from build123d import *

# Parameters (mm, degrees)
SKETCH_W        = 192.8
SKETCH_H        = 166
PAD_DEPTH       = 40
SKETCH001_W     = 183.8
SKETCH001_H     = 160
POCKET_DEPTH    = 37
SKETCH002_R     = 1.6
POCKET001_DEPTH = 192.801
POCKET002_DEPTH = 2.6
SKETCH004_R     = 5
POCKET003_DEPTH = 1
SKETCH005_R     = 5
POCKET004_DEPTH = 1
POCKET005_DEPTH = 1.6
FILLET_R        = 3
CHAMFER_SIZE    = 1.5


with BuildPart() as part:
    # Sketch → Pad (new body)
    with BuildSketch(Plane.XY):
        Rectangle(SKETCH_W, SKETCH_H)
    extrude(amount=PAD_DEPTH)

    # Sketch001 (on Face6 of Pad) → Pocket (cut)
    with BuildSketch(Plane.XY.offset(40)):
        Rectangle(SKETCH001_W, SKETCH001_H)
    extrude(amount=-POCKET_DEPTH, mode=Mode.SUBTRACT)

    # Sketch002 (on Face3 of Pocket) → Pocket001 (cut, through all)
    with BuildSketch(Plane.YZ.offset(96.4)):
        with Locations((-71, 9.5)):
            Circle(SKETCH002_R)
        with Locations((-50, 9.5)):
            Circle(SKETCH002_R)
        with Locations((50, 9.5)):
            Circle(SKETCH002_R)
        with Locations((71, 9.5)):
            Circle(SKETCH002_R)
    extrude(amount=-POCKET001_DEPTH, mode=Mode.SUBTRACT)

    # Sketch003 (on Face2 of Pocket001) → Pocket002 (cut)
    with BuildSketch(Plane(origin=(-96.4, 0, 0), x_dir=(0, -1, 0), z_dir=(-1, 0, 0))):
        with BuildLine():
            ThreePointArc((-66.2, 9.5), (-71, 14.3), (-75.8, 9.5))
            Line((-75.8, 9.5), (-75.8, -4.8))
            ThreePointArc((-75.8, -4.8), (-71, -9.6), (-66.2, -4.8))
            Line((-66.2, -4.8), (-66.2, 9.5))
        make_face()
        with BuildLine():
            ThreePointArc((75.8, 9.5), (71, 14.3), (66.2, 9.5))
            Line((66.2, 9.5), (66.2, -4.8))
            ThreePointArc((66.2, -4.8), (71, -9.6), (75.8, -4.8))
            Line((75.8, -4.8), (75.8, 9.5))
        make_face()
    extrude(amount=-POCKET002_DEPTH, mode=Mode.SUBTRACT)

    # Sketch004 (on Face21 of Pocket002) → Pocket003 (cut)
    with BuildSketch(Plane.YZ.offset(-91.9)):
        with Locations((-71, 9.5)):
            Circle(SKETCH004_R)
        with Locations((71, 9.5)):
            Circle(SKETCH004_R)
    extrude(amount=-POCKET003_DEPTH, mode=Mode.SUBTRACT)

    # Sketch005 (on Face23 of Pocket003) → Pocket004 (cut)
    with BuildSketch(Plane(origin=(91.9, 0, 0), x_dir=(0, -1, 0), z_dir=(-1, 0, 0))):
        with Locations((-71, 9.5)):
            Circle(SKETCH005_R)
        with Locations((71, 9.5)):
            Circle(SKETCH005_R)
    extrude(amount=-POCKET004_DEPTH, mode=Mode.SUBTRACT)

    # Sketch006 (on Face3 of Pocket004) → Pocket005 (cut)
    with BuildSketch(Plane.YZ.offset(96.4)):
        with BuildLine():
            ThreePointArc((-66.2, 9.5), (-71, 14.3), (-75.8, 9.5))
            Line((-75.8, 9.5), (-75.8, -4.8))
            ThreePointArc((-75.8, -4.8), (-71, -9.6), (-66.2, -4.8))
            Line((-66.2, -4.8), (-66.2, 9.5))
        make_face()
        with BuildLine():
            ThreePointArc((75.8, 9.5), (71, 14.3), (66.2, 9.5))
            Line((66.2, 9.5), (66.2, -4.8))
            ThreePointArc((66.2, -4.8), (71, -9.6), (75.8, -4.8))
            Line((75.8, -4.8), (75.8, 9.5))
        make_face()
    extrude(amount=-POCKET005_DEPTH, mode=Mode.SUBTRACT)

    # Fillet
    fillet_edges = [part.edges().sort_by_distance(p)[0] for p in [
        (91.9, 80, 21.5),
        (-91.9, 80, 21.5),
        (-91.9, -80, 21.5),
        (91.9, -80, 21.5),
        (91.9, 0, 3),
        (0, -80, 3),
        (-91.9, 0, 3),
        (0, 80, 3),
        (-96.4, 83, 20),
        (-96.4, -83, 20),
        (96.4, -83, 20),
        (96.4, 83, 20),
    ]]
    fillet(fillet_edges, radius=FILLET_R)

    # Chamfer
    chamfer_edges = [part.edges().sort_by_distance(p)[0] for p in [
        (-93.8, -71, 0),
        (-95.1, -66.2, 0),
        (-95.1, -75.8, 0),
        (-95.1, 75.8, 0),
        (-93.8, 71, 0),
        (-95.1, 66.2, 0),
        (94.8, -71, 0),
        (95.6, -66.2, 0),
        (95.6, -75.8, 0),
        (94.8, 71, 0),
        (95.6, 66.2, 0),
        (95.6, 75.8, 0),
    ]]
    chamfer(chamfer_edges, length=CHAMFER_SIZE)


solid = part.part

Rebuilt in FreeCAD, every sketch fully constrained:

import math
import FreeCAD as App
import Part
import Sketcher
from FreeCAD import Vector


def edges_at(feature, points):
    """Names of the edges that pass closest to the given points."""
    edges = feature.Shape.Edges
    near = lambda p: min(range(len(edges)), key=lambda i: edges[i].distToShape(Part.Vertex(*p))[0])
    return sorted({f"Edge{near(p) + 1}" for p in points})

doc = App.newDocument("Part")
body = doc.addObject("PartDesign::Body", "Body")

sketch1 = body.newObject("Sketcher::SketchObject", "Sketch")
sketch1.AttachmentSupport = (doc.getObject("XY_Plane"), [""])
sketch1.MapMode = "FlatFace"
sketch1.addGeometry([
    Part.LineSegment(Vector(-96, 83, 0), Vector(-96, -83, 0)),
    Part.LineSegment(Vector(-96, -83, 0), Vector(96, -83, 0)),
    Part.LineSegment(Vector(96, -83, 0), Vector(96, 83, 0)),
    Part.LineSegment(Vector(96, 83, 0), Vector(-96, 83, 0)),
], False)
sketch1.addConstraint([
    Sketcher.Constraint("Coincident", 0, 2, 1, 1),
    Sketcher.Constraint("Coincident", 1, 2, 2, 1),
    Sketcher.Constraint("Coincident", 2, 2, 3, 1),
    Sketcher.Constraint("Coincident", 3, 2, 0, 1),
    Sketcher.Constraint("Vertical", 0),
    Sketcher.Constraint("Horizontal", 1),
    Sketcher.Constraint("Vertical", 2),
    Sketcher.Constraint("Horizontal", 3),
    Sketcher.Constraint("Symmetric", 0, 2, 2, 2, -1, 1),
    Sketcher.Constraint("DistanceY", 0, 2, 0, 1, 166.0),
    Sketcher.Constraint("DistanceX", 1, 1, 1, 2, 192.8),
])
pad1 = body.newObject("PartDesign::Pad", "Pad")
pad1.Profile = sketch1
pad1.Length = 40

sketch2 = body.newObject("Sketcher::SketchObject", "Sketch001")
sketch2.AttachmentSupport = (doc.getObject("XY_Plane"), [""])
sketch2.MapMode = "FlatFace"
sketch2.AttachmentOffset = App.Placement(Vector(0, 0, 40), App.Rotation())
sketch2.addGeometry([
    Part.LineSegment(Vector(-92, 80, 0), Vector(-92, -80, 0)),
    Part.LineSegment(Vector(-92, -80, 0), Vector(92, -80, 0)),
    Part.LineSegment(Vector(92, -80, 0), Vector(92, 80, 0)),
    Part.LineSegment(Vector(92, 80, 0), Vector(-92, 80, 0)),
], False)
sketch2.addConstraint([
    Sketcher.Constraint("Coincident", 0, 2, 1, 1),
    Sketcher.Constraint("Coincident", 1, 2, 2, 1),
    Sketcher.Constraint("Coincident", 2, 2, 3, 1),
    Sketcher.Constraint("Coincident", 3, 2, 0, 1),
    Sketcher.Constraint("Vertical", 0),
    Sketcher.Constraint("Horizontal", 1),
    Sketcher.Constraint("Vertical", 2),
    Sketcher.Constraint("Horizontal", 3),
    Sketcher.Constraint("Symmetric", 0, 2, 2, 2, -1, 1),
    Sketcher.Constraint("DistanceY", 0, 2, 0, 1, 160.0),
    Sketcher.Constraint("DistanceX", 1, 1, 1, 2, 183.8),
])
pocket1 = body.newObject("PartDesign::Pocket", "Pocket")
pocket1.Profile = sketch2
pocket1.Length = 37

sketch3 = body.newObject("Sketcher::SketchObject", "Sketch002")
sketch3.AttachmentSupport = (doc.getObject("YZ_Plane"), [""])
sketch3.MapMode = "FlatFace"
sketch3.AttachmentOffset = App.Placement(Vector(0, 0, 96.4), App.Rotation())
sketch3.addGeometry([
    Part.Circle(Vector(-71, 9.5, 0), Vector(0, 0, 1), 1.6),
    Part.Circle(Vector(-50, 9.5, 0), Vector(0, 0, 1), 1.6),
    Part.Circle(Vector(50, 9.5, 0), Vector(0, 0, 1), 1.6),
    Part.Circle(Vector(71, 9.5, 0), Vector(0, 0, 1), 1.6),
], False)
sketch3.addConstraint([
    Sketcher.Constraint("Equal", 0, 1),
    Sketcher.Constraint("Equal", 1, 2),
    Sketcher.Constraint("Equal", 2, 3),
    Sketcher.Constraint("Symmetric", 1, 3, 2, 3, -2),
    Sketcher.Constraint("Symmetric", 0, 3, 3, 3, -2),
    Sketcher.Constraint("Horizontal", 0, 3, 1, 3),
    Sketcher.Constraint("Diameter", 0, 3.2),
    Sketcher.Constraint("DistanceX", 0, 3, -1, 1, 71.0),
    Sketcher.Constraint("DistanceX", 1, 3, -1, 1, 50.0),
    Sketcher.Constraint("DistanceY", -1, 1, 0, 3, 9.5),
])
pocket2 = body.newObject("PartDesign::Pocket", "Pocket001")
pocket2.Profile = sketch3
pocket2.Type = "ThroughAll"

sketch4 = body.newObject("Sketcher::SketchObject", "Sketch003")
sketch4.AttachmentSupport = (doc.getObject("YZ_Plane"), [""])
sketch4.MapMode = "FlatFace"
sketch4.AttachmentOffset = App.Placement(Vector(0, 0, -96.4), App.Rotation())
sketch4.addGeometry([
    Part.ArcOfCircle(Part.Circle(Vector(71, 9.5, 0), Vector(0, 0, 1), 4.8), math.radians(0), math.radians(180)),
    Part.LineSegment(Vector(75.8, 9.5, 0), Vector(75.8, -4.8, 0)),
    Part.ArcOfCircle(Part.Circle(Vector(71, -4.8, 0), Vector(0, 0, 1), 4.8), math.radians(180), math.radians(360)),
    Part.LineSegment(Vector(66.2, -4.8, 0), Vector(66.2, 9.5, 0)),
    Part.ArcOfCircle(Part.Circle(Vector(-71, 9.5, 0), Vector(0, 0, 1), 4.8), math.radians(0), math.radians(180)),
    Part.LineSegment(Vector(-66.2, 9.5, 0), Vector(-66.2, -4.8, 0)),
    Part.ArcOfCircle(Part.Circle(Vector(-71, -4.8, 0), Vector(0, 0, 1), 4.8), math.radians(180), math.radians(360)),
    Part.LineSegment(Vector(-75.8, -4.8, 0), Vector(-75.8, 9.5, 0)),
], False)
sketch4.addConstraint([
    Sketcher.Constraint("Tangent", 0, 1, 1, 1),
    Sketcher.Constraint("Tangent", 1, 2, 2, 2),
    Sketcher.Constraint("Tangent", 2, 1, 3, 1),
    Sketcher.Constraint("Tangent", 3, 2, 0, 2),
    Sketcher.Constraint("Tangent", 4, 1, 5, 1),
    Sketcher.Constraint("Tangent", 5, 2, 6, 2),
    Sketcher.Constraint("Tangent", 6, 1, 7, 1),
    Sketcher.Constraint("Tangent", 7, 2, 4, 2),
    Sketcher.Constraint("Vertical", 1),
    Sketcher.Constraint("Vertical", 3),
    Sketcher.Constraint("Vertical", 5),
    Sketcher.Constraint("Vertical", 7),
    Sketcher.Constraint("Equal", 2, 4),
    Sketcher.Constraint("Symmetric", 0, 3, 4, 3, -2),
    Sketcher.Constraint("Horizontal", 2, 3, 6, 3),
    Sketcher.Constraint("Radius", 0, 4.8),
    Sketcher.Constraint("DistanceY", 1, 2, 1, 1, 14.3),
    Sketcher.Constraint("DistanceX", -1, 1, 0, 3, 71.0),
    Sketcher.Constraint("DistanceY", -1, 1, 0, 3, 9.5),
])
pocket3 = body.newObject("PartDesign::Pocket", "Pocket002")
pocket3.Profile = sketch4
pocket3.Length = 2.6
pocket3.Reversed = True

sketch5 = body.newObject("Sketcher::SketchObject", "Sketch004")
sketch5.AttachmentSupport = (doc.getObject("YZ_Plane"), [""])
sketch5.MapMode = "FlatFace"
sketch5.AttachmentOffset = App.Placement(Vector(0, 0, -91.9), App.Rotation())
sketch5.addGeometry([
    Part.Circle(Vector(-71, 10, 0), Vector(0, 0, 1), 5),
    Part.Circle(Vector(71, 10, 0), Vector(0, 0, 1), 5),
], False)
sketch5.addConstraint([
    Sketcher.Constraint("Equal", 0, 1),
    Sketcher.Constraint("Symmetric", 0, 3, 1, 3, -2),
    Sketcher.Constraint("Diameter", 0, 10.0),
    Sketcher.Constraint("DistanceX", 0, 3, -1, 1, 71.0),
    Sketcher.Constraint("DistanceY", -1, 1, 0, 3, 9.5),
])
pocket4 = body.newObject("PartDesign::Pocket", "Pocket003")
pocket4.Profile = sketch5
pocket4.Length = 1

sketch6 = body.newObject("Sketcher::SketchObject", "Sketch005")
sketch6.AttachmentSupport = (doc.getObject("YZ_Plane"), [""])
sketch6.MapMode = "FlatFace"
sketch6.AttachmentOffset = App.Placement(Vector(0, 0, 91.9), App.Rotation())
sketch6.addGeometry([
    Part.Circle(Vector(71, 10, 0), Vector(0, 0, 1), 5),
    Part.Circle(Vector(-71, 10, 0), Vector(0, 0, 1), 5),
], False)
sketch6.addConstraint([
    Sketcher.Constraint("Equal", 0, 1),
    Sketcher.Constraint("Symmetric", 0, 3, 1, 3, -2),
    Sketcher.Constraint("Diameter", 0, 10.0),
    Sketcher.Constraint("DistanceX", -1, 1, 0, 3, 71.0),
    Sketcher.Constraint("DistanceY", -1, 1, 0, 3, 9.5),
])
pocket5 = body.newObject("PartDesign::Pocket", "Pocket004")
pocket5.Profile = sketch6
pocket5.Length = 1
pocket5.Reversed = True

sketch7 = body.newObject("Sketcher::SketchObject", "Sketch006")
sketch7.AttachmentSupport = (doc.getObject("YZ_Plane"), [""])
sketch7.MapMode = "FlatFace"
sketch7.AttachmentOffset = App.Placement(Vector(0, 0, 96.4), App.Rotation())
sketch7.addGeometry([
    Part.ArcOfCircle(Part.Circle(Vector(-71, 9.5, 0), Vector(0, 0, 1), 4.8), math.radians(0), math.radians(180)),
    Part.LineSegment(Vector(-75.8, 9.5, 0), Vector(-75.8, -4.8, 0)),
    Part.ArcOfCircle(Part.Circle(Vector(-71, -4.8, 0), Vector(0, 0, 1), 4.8), math.radians(180), math.radians(360)),
    Part.LineSegment(Vector(-66.2, -4.8, 0), Vector(-66.2, 9.5, 0)),
    Part.ArcOfCircle(Part.Circle(Vector(71, 9.5, 0), Vector(0, 0, 1), 4.8), math.radians(0), math.radians(180)),
    Part.LineSegment(Vector(66.2, 9.5, 0), Vector(66.2, -4.8, 0)),
    Part.ArcOfCircle(Part.Circle(Vector(71, -4.8, 0), Vector(0, 0, 1), 4.8), math.radians(180), math.radians(360)),
    Part.LineSegment(Vector(75.8, -4.8, 0), Vector(75.8, 9.5, 0)),
], False)
sketch7.addConstraint([
    Sketcher.Constraint("Tangent", 0, 2, 1, 1),
    Sketcher.Constraint("Tangent", 1, 2, 2, 1),
    Sketcher.Constraint("Tangent", 2, 2, 3, 1),
    Sketcher.Constraint("Tangent", 3, 2, 0, 1),
    Sketcher.Constraint("Tangent", 4, 2, 5, 1),
    Sketcher.Constraint("Tangent", 5, 2, 6, 1),
    Sketcher.Constraint("Tangent", 6, 2, 7, 1),
    Sketcher.Constraint("Tangent", 7, 2, 4, 1),
    Sketcher.Constraint("Vertical", 1),
    Sketcher.Constraint("Vertical", 3),
    Sketcher.Constraint("Vertical", 5),
    Sketcher.Constraint("Vertical", 7),
    Sketcher.Constraint("Equal", 2, 4),
    Sketcher.Constraint("Symmetric", 0, 3, 4, 3, -2),
    Sketcher.Constraint("Horizontal", 2, 3, 6, 3),
    Sketcher.Constraint("Radius", 0, 4.8),
    Sketcher.Constraint("DistanceY", 1, 2, 1, 1, 14.3),
    Sketcher.Constraint("DistanceX", 0, 3, -1, 1, 71.0),
    Sketcher.Constraint("DistanceY", -1, 1, 0, 3, 9.5),
])
pocket6 = body.newObject("PartDesign::Pocket", "Pocket005")
pocket6.Profile = sketch7
pocket6.Length = 1.6
doc.recompute()

fillet = body.newObject("PartDesign::Fillet", "Fillet")
fillet.Base = (pocket6, edges_at(pocket6, [
    (91.9, 80, 21.5),
    (-91.9, 80, 21.5),
    (-91.9, -80, 21.5),
    (91.9, -80, 21.5),
    (91.9, 0, 3),
    (0, -80, 3),
    (-91.9, 0, 3),
    (0, 80, 3),
    (-96.4, 83, 20),
    (-96.4, -83, 20),
    (96.4, -83, 20),
    (96.4, 83, 20),
]))
fillet.Radius = 3
doc.recompute()

chamfer = body.newObject("PartDesign::Chamfer", "Chamfer")
chamfer.Base = (fillet, edges_at(fillet, [
    (-93.8, -71, 0),
    (-95.1, -66.2, 0),
    (-95.1, -75.8, 0),
    (-95.1, 75.8, 0),
    (-93.8, 71, 0),
    (-95.1, 66.2, 0),
    (94.8, -71, 0),
    (95.6, -66.2, 0),
    (95.6, -75.8, 0),
    (94.8, 71, 0),
    (95.6, 66.2, 0),
    (95.6, 75.8, 0),
]))
chamfer.Size = 1.5

doc.recompute()
